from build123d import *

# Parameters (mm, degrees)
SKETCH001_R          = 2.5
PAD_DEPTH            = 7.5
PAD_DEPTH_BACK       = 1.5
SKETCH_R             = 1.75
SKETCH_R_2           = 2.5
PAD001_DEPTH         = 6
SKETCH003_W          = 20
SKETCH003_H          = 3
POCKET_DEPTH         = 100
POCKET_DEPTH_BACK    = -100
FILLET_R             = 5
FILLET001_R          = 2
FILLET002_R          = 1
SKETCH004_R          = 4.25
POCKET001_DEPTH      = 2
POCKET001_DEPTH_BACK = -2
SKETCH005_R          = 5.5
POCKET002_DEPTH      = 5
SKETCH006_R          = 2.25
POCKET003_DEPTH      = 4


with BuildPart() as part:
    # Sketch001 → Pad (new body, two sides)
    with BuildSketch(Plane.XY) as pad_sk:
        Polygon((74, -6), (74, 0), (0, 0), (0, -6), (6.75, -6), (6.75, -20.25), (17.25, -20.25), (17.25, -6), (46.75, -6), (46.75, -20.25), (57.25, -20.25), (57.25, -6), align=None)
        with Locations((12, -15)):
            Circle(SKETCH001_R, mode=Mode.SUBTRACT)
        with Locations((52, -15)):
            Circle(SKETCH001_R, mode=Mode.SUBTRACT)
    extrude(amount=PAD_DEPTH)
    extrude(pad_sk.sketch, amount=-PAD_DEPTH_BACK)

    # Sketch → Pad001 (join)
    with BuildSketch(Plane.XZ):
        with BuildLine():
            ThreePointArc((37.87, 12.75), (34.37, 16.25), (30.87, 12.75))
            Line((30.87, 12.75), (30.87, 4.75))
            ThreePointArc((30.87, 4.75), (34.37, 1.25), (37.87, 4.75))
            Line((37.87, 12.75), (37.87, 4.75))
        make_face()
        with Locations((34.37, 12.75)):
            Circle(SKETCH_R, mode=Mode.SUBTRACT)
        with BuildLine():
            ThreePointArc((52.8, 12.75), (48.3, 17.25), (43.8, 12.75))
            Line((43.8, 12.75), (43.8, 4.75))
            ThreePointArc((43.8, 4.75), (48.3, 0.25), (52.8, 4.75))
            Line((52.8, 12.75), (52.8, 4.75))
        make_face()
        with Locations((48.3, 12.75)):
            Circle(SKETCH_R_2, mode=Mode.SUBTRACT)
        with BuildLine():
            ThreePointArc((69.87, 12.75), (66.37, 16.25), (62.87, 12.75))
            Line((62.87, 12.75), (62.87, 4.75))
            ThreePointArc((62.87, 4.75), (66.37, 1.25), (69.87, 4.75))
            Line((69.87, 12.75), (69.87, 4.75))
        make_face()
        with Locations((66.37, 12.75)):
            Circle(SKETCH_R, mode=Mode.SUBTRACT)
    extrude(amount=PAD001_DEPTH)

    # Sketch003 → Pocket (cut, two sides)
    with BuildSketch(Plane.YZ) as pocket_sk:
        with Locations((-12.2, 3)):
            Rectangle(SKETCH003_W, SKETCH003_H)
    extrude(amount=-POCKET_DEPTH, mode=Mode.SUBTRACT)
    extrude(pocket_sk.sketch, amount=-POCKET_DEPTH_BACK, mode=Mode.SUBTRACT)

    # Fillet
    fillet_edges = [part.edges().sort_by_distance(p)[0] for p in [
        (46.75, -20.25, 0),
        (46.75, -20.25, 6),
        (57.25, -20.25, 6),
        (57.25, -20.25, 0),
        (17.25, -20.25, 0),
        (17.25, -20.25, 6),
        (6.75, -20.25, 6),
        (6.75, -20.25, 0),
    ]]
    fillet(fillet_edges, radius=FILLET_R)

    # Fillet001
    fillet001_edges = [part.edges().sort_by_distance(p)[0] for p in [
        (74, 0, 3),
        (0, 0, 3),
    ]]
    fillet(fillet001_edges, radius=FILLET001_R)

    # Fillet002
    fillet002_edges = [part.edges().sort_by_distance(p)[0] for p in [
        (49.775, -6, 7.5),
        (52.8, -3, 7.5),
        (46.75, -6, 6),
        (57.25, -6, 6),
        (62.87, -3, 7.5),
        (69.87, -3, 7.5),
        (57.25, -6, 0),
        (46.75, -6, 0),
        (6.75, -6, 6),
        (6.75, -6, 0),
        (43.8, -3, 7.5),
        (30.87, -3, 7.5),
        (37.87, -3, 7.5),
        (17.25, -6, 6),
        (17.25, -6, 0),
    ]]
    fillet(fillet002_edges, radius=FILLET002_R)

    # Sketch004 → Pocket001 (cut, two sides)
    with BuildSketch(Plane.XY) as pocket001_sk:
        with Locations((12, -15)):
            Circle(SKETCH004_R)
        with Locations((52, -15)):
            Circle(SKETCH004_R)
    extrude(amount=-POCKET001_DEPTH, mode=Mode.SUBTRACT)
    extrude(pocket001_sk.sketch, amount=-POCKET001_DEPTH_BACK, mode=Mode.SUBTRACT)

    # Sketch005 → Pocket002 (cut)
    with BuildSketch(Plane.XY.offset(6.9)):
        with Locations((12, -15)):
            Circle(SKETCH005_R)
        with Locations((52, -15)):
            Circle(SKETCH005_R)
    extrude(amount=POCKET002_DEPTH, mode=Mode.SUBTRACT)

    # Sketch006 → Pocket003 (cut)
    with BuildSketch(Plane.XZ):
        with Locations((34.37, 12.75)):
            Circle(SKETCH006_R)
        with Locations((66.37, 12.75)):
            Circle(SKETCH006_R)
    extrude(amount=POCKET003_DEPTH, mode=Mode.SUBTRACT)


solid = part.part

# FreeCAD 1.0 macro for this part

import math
import FreeCAD as App
import Part
import Sketcher
from FreeCAD import Vector
Q = App.Units.Quantity


def edges_at(feature, points):
    """Names of the edges that pass closest to the given points."""
    edges = feature.Shape.Edges
    near = lambda p: min(range(len(edges)), key=lambda i: edges[i].distToShape(Part.Vertex(*p))[0])
    return sorted({f"Edge{near(p) + 1}" for p in points})


def add_polygon(sketch, points):
    """Adds a closed chain of lines whose ends are joined by coincident constraints."""
    first, n = sketch.GeometryCount, len(points)
    for a, b in zip(points, points[1:] + points[:1]):
        sketch.addGeometry(Part.LineSegment(App.Vector(*a, 0), App.Vector(*b, 0)), False)
    for i in range(n):
        sketch.addConstraint(Sketcher.Constraint("Coincident", first + i, 2, first + (i + 1) % n, 1))

doc = App.newDocument("Part")
body = doc.addObject("PartDesign::Body", "Body")

sketch1 = doc.addObject("Sketcher::SketchObject", "Sketch")
body.addObject(sketch1)
sketch1.AttachmentSupport = (doc.XY_Plane, [""])
sketch1.MapMode = "FlatFace"
add_polygon(sketch1, [(74, -6), (74, 0), (0, 0), (0, -6), (6.8, -6), (6.8, -20.2), (17.2, -20.2), (17.2, -6), (46.8, -6), (46.8, -20.2), (57.2, -20.2), (57.2, -6)])
sketch1.addGeometry(Part.Circle(Vector(12, -15, 0), Vector(0, 0, 1), 2.5), False)
sketch1.addGeometry(Part.Circle(Vector(52, -15, 0), Vector(0, 0, 1), 2.5), False)
sketch1.addConstraint([
    Sketcher.Constraint("Vertical", 0),
    Sketcher.Constraint("Horizontal", 1),
    Sketcher.Constraint("Vertical", 2),
    Sketcher.Constraint("Horizontal", 3),
    Sketcher.Constraint("Vertical", 4),
    Sketcher.Constraint("Horizontal", 5),
    Sketcher.Constraint("Vertical", 6),
    Sketcher.Constraint("Horizontal", 7),
    Sketcher.Constraint("Vertical", 8),
    Sketcher.Constraint("Horizontal", 9),
    Sketcher.Constraint("Vertical", 10),
    Sketcher.Constraint("Horizontal", 11),
    Sketcher.Constraint("Coincident", 1, 2, -1, 1),
    Sketcher.Constraint("Equal", 12, 13),
    Sketcher.Constraint("Horizontal", 12, 3, 13, 3),
    Sketcher.Constraint("Horizontal", 3, 2, 6, 2),
    Sketcher.Constraint("Horizontal", 5, 2, 8, 2),
    Sketcher.Constraint("Horizontal", 7, 2, 10, 2),
    Sketcher.Constraint("Equal", 5, 9),
    Sketcher.Constraint("Diameter", 12, Q("5 mm")),
    Sketcher.Constraint("DistanceX", 1, 2, 1, 1, Q("74 mm")),
    Sketcher.Constraint("DistanceY", 0, 1, 0, 2, Q("6 mm")),
    Sketcher.Constraint("DistanceX", 5, 1, 5, 2, Q("10.5 mm")),
    Sketcher.Constraint("DistanceX", 7, 1, 7, 2, Q("29.5 mm")),
    Sketcher.Constraint("DistanceX", -1, 1, 12, 3, Q("12 mm")),
    Sketcher.Constraint("DistanceY", 12, 3, -1, 1, Q("15 mm")),
    Sketcher.Constraint("DistanceX", -1, 1, 13, 3, Q("52 mm")),
    Sketcher.Constraint("DistanceX", 3, 1, 3, 2, Q("6.75 mm")),
    Sketcher.Constraint("DistanceY", 4, 2, 4, 1, Q("14.25 mm")),
])
pad1 = doc.addObject("PartDesign::Pad", "Pad")
body.addObject(pad1)
pad1.Profile = sketch1
pad1.Type = "TwoLengths"
pad1.Length = 7.5
pad1.Length2 = 1.5

sketch2 = doc.addObject("Sketcher::SketchObject", "Sketch001")
body.addObject(sketch2)
sketch2.AttachmentSupport = (doc.XZ_Plane, [""])
sketch2.MapMode = "FlatFace"
sketch2.addGeometry([
    Part.ArcOfCircle(Part.Circle(Vector(34.4, 12.8, 0), Vector(0, 0, 1), 3.5), math.radians(0), math.radians(180)),
    Part.LineSegment(Vector(30.9, 12.8, 0), Vector(30.9, 4.8, 0)),
    Part.ArcOfCircle(Part.Circle(Vector(34.4, 4.8, 0), Vector(0, 0, 1), 3.5), math.radians(180), math.radians(360)),
    Part.LineSegment(Vector(37.9, 4.8, 0), Vector(37.9, 12.8, 0)),
    Part.Circle(Vector(34.4, 12.8, 0), Vector(0, 0, 1), 1.8),
    Part.ArcOfCircle(Part.Circle(Vector(48.3, 12.8, 0), Vector(0, 0, 1), 4.5), math.radians(0), math.radians(180)),
    Part.LineSegment(Vector(43.8, 12.8, 0), Vector(43.8, 4.8, 0)),
    Part.ArcOfCircle(Part.Circle(Vector(48.3, 4.8, 0), Vector(0, 0, 1), 4.5), math.radians(180), math.radians(360)),
    Part.LineSegment(Vector(52.8, 4.8, 0), Vector(52.8, 12.8, 0)),
    Part.Circle(Vector(48.3, 12.8, 0), Vector(0, 0, 1), 2.5),
    Part.ArcOfCircle(Part.Circle(Vector(66.4, 12.8, 0), Vector(0, 0, 1), 3.5), math.radians(0), math.radians(180)),
    Part.LineSegment(Vector(62.9, 12.8, 0), Vector(62.9, 4.8, 0)),
    Part.ArcOfCircle(Part.Circle(Vector(66.4, 4.8, 0), Vector(0, 0, 1), 3.5), math.radians(180), math.radians(360)),
    Part.LineSegment(Vector(69.9, 4.8, 0), Vector(69.9, 12.8, 0)),
    Part.Circle(Vector(66.4, 12.8, 0), Vector(0, 0, 1), 1.8),
], False)
sketch2.addConstraint([
    Sketcher.Constraint("Tangent", 0, 2, 1, 1),
    Sketcher.Constraint("Tangent", 1, 2, 2, 1),
    Sketcher.Constraint("Tangent", 2, 2, 3, 1),
    Sketcher.Constraint("Tangent", 3, 2, 0, 1),
    Sketcher.Constraint("Tangent", 5, 2, 6, 1),
    Sketcher.Constraint("Tangent", 6, 2, 7, 1),
    Sketcher.Constraint("Tangent", 7, 2, 8, 1),
    Sketcher.Constraint("Tangent", 8, 2, 5, 1),
    Sketcher.Constraint("Tangent", 10, 2, 11, 1),
    Sketcher.Constraint("Tangent", 11, 2, 12, 1),
    Sketcher.Constraint("Tangent", 12, 2, 13, 1),
    Sketcher.Constraint("Tangent", 13, 2, 10, 1),
    Sketcher.Constraint("Vertical", 1),
    Sketcher.Constraint("Vertical", 3),
    Sketcher.Constraint("Vertical", 6),
    Sketcher.Constraint("Vertical", 8),
    Sketcher.Constraint("Vertical", 11),
    Sketcher.Constraint("Vertical", 13),
    Sketcher.Constraint("Coincident", 4, 3, 0, 3),
    Sketcher.Constraint("Coincident", 9, 3, 5, 3),
    Sketcher.Constraint("Coincident", 14, 3, 10, 3),
    Sketcher.Constraint("Equal", 2, 10),
    Sketcher.Constraint("Equal", 4, 14),
    Sketcher.Constraint("Horizontal", 4, 3, 5, 3),
    Sketcher.Constraint("Horizontal", 2, 3, 7, 3),
    Sketcher.Constraint("Horizontal", 9, 3, 10, 3),
    Sketcher.Constraint("Horizontal", 7, 3, 12, 3),
    Sketcher.Constraint("Diameter", 9, Q("5 mm")),
    Sketcher.Constraint("Diameter", 4, Q("3.5 mm")),
    Sketcher.Constraint("Radius", 0, Q("3.5 mm")),
    Sketcher.Constraint("Radius", 5, Q("4.5 mm")),
    Sketcher.Constraint("DistanceY", 1, 2, 1, 1, Q("8 mm")),
    Sketcher.Constraint("DistanceX", 0, 3, 10, 3, Q("32 mm")),
    Sketcher.Constraint("DistanceX", -1, 1, 5, 3, Q("48.3 mm")),
    Sketcher.Constraint("DistanceX", -1, 1, 0, 3, Q("34.37 mm")),
    Sketcher.Constraint("DistanceY", -1, 1, 0, 3, Q("12.75 mm")),
])
pad2 = doc.addObject("PartDesign::Pad", "Pad001")
body.addObject(pad2)
pad2.Profile = sketch2
pad2.Length = 6

sketch3 = doc.addObject("Sketcher::SketchObject", "Sketch002")
body.addObject(sketch3)
sketch3.AttachmentSupport = (doc.YZ_Plane, [""])
sketch3.MapMode = "FlatFace"
add_polygon(sketch3, [(-22.2, 4.5), (-22.2, 1.5), (-2.2, 1.5), (-2.2, 4.5)])
sketch3.addConstraint([
    Sketcher.Constraint("Vertical", 0),
    Sketcher.Constraint("Horizontal", 1),
    Sketcher.Constraint("Vertical", 2),
    Sketcher.Constraint("Horizontal", 3),
    Sketcher.Constraint("DistanceX", 1, 1, 1, 2, Q("20 mm")),
    Sketcher.Constraint("DistanceY", 0, 2, 0, 1, Q("3 mm")),
    Sketcher.Constraint("DistanceX", 0, 2, -1, 1, Q("22.2 mm")),
    Sketcher.Constraint("DistanceY", -1, 1, 0, 2, Q("1.5 mm")),
])
pocket1 = doc.addObject("PartDesign::Pocket", "Pocket")
body.addObject(pocket1)
pocket1.Profile = sketch3
pocket1.Type = "ThroughAll"
pocket1.Midplane = True
doc.recompute()

fillet = doc.addObject("PartDesign::Fillet", "Fillet")
body.addObject(fillet)
fillet.Base = (pocket1, edges_at(pocket1, [
    (46.75, -20.25, 0),
    (46.75, -20.25, 6),
    (57.25, -20.25, 6),
    (57.25, -20.25, 0),
    (17.25, -20.25, 0),
    (17.25, -20.25, 6),
    (6.75, -20.25, 6),
    (6.75, -20.25, 0),
]))
fillet.Radius = 5
doc.recompute()

fillet2 = doc.addObject("PartDesign::Fillet", "Fillet001")
body.addObject(fillet2)
fillet2.Base = (fillet, edges_at(fillet, [(74, 0, 3), (0, 0, 3)]))
fillet2.Radius = 2
doc.recompute()

fillet3 = doc.addObject("PartDesign::Fillet", "Fillet002")
body.addObject(fillet3)
fillet3.Base = (fillet2, edges_at(fillet2, [
    (49.775, -6, 7.5),
    (52.8, -3, 7.5),
    (46.75, -6, 6),
    (57.25, -6, 6),
    (62.87, -3, 7.5),
    (69.87, -3, 7.5),
    (57.25, -6, 0),
    (46.75, -6, 0),
    (6.75, -6, 6),
    (6.75, -6, 0),
    (43.8, -3, 7.5),
    (30.87, -3, 7.5),
    (37.87, -3, 7.5),
    (17.25, -6, 6),
    (17.25, -6, 0),
]))
fillet3.Radius = 1

sketch4 = doc.addObject("Sketcher::SketchObject", "Sketch003")
body.addObject(sketch4)
sketch4.AttachmentSupport = (doc.XY_Plane, [""])
sketch4.MapMode = "FlatFace"
sketch4.addGeometry([
    Part.Circle(Vector(12, -15, 0), Vector(0, 0, 1), 4.2),
    Part.Circle(Vector(52, -15, 0), Vector(0, 0, 1), 4.2),
], False)
sketch4.addConstraint([
    Sketcher.Constraint("Equal", 0, 1),
    Sketcher.Constraint("Horizontal", 0, 3, 1, 3),
    Sketcher.Constraint("Diameter", 0, Q("8.5 mm")),
    Sketcher.Constraint("DistanceX", -1, 1, 0, 3, Q("12 mm")),
    Sketcher.Constraint("DistanceY", 0, 3, -1, 1, Q("15 mm")),
    Sketcher.Constraint("DistanceX", -1, 1, 1, 3, Q("52 mm")),
])
pocket2 = doc.addObject("PartDesign::Pocket", "Pocket001")
body.addObject(pocket2)
pocket2.Profile = sketch4
pocket2.Type = "TwoLengths"
pocket2.Length = 2
pocket2.Length2 = 2

sketch5 = doc.addObject("Sketcher::SketchObject", "Sketch004")
body.addObject(sketch5)
sketch5.AttachmentSupport = (doc.XY_Plane, [""])
sketch5.MapMode = "FlatFace"
sketch5.AttachmentOffset = App.Placement(Vector(0, 0, 6.9), App.Rotation())
sketch5.addGeometry([
    Part.Circle(Vector(12, -15, 0), Vector(0, 0, 1), 6),
    Part.Circle(Vector(52, -15, 0), Vector(0, 0, 1), 6),
], False)
sketch5.addConstraint([
    Sketcher.Constraint("Equal", 0, 1),
    Sketcher.Constraint("Horizontal", 0, 3, 1, 3),
    Sketcher.Constraint("Diameter", 0, Q("11 mm")),
    Sketcher.Constraint("DistanceX", -1, 1, 0, 3, Q("12 mm")),
    Sketcher.Constraint("DistanceY", 0, 3, -1, 1, Q("15 mm")),
    Sketcher.Constraint("DistanceX", -1, 1, 1, 3, Q("52 mm")),
])
pocket3 = doc.addObject("PartDesign::Pocket", "Pocket002")
body.addObject(pocket3)
pocket3.Profile = sketch5
pocket3.Length = 5
pocket3.Reversed = True

sketch6 = doc.addObject("Sketcher::SketchObject", "Sketch005")
body.addObject(sketch6)
sketch6.AttachmentSupport = (doc.XZ_Plane, [""])
sketch6.MapMode = "FlatFace"
sketch6.addGeometry([
    Part.Circle(Vector(34.4, 12.8, 0), Vector(0, 0, 1), 2.2),
    Part.Circle(Vector(66.4, 12.8, 0), Vector(0, 0, 1), 2.2),
], False)
sketch6.addConstraint([
    Sketcher.Constraint("Equal", 0, 1),
    Sketcher.Constraint("Horizontal", 0, 3, 1, 3),
    Sketcher.Constraint("Diameter", 0, Q("4.5 mm")),
    Sketcher.Constraint("DistanceX", 0, 3, 1, 3, Q("32 mm")),
    Sketcher.Constraint("DistanceX", -1, 1, 0, 3, Q("34.37 mm")),
    Sketcher.Constraint("DistanceY", -1, 1, 0, 3, Q("12.75 mm")),
])
pocket4 = doc.addObject("PartDesign::Pocket", "Pocket003")
body.addObject(pocket4)
pocket4.Profile = sketch6
pocket4.Length = 4
pocket4.Reversed = True

doc.recompute()
